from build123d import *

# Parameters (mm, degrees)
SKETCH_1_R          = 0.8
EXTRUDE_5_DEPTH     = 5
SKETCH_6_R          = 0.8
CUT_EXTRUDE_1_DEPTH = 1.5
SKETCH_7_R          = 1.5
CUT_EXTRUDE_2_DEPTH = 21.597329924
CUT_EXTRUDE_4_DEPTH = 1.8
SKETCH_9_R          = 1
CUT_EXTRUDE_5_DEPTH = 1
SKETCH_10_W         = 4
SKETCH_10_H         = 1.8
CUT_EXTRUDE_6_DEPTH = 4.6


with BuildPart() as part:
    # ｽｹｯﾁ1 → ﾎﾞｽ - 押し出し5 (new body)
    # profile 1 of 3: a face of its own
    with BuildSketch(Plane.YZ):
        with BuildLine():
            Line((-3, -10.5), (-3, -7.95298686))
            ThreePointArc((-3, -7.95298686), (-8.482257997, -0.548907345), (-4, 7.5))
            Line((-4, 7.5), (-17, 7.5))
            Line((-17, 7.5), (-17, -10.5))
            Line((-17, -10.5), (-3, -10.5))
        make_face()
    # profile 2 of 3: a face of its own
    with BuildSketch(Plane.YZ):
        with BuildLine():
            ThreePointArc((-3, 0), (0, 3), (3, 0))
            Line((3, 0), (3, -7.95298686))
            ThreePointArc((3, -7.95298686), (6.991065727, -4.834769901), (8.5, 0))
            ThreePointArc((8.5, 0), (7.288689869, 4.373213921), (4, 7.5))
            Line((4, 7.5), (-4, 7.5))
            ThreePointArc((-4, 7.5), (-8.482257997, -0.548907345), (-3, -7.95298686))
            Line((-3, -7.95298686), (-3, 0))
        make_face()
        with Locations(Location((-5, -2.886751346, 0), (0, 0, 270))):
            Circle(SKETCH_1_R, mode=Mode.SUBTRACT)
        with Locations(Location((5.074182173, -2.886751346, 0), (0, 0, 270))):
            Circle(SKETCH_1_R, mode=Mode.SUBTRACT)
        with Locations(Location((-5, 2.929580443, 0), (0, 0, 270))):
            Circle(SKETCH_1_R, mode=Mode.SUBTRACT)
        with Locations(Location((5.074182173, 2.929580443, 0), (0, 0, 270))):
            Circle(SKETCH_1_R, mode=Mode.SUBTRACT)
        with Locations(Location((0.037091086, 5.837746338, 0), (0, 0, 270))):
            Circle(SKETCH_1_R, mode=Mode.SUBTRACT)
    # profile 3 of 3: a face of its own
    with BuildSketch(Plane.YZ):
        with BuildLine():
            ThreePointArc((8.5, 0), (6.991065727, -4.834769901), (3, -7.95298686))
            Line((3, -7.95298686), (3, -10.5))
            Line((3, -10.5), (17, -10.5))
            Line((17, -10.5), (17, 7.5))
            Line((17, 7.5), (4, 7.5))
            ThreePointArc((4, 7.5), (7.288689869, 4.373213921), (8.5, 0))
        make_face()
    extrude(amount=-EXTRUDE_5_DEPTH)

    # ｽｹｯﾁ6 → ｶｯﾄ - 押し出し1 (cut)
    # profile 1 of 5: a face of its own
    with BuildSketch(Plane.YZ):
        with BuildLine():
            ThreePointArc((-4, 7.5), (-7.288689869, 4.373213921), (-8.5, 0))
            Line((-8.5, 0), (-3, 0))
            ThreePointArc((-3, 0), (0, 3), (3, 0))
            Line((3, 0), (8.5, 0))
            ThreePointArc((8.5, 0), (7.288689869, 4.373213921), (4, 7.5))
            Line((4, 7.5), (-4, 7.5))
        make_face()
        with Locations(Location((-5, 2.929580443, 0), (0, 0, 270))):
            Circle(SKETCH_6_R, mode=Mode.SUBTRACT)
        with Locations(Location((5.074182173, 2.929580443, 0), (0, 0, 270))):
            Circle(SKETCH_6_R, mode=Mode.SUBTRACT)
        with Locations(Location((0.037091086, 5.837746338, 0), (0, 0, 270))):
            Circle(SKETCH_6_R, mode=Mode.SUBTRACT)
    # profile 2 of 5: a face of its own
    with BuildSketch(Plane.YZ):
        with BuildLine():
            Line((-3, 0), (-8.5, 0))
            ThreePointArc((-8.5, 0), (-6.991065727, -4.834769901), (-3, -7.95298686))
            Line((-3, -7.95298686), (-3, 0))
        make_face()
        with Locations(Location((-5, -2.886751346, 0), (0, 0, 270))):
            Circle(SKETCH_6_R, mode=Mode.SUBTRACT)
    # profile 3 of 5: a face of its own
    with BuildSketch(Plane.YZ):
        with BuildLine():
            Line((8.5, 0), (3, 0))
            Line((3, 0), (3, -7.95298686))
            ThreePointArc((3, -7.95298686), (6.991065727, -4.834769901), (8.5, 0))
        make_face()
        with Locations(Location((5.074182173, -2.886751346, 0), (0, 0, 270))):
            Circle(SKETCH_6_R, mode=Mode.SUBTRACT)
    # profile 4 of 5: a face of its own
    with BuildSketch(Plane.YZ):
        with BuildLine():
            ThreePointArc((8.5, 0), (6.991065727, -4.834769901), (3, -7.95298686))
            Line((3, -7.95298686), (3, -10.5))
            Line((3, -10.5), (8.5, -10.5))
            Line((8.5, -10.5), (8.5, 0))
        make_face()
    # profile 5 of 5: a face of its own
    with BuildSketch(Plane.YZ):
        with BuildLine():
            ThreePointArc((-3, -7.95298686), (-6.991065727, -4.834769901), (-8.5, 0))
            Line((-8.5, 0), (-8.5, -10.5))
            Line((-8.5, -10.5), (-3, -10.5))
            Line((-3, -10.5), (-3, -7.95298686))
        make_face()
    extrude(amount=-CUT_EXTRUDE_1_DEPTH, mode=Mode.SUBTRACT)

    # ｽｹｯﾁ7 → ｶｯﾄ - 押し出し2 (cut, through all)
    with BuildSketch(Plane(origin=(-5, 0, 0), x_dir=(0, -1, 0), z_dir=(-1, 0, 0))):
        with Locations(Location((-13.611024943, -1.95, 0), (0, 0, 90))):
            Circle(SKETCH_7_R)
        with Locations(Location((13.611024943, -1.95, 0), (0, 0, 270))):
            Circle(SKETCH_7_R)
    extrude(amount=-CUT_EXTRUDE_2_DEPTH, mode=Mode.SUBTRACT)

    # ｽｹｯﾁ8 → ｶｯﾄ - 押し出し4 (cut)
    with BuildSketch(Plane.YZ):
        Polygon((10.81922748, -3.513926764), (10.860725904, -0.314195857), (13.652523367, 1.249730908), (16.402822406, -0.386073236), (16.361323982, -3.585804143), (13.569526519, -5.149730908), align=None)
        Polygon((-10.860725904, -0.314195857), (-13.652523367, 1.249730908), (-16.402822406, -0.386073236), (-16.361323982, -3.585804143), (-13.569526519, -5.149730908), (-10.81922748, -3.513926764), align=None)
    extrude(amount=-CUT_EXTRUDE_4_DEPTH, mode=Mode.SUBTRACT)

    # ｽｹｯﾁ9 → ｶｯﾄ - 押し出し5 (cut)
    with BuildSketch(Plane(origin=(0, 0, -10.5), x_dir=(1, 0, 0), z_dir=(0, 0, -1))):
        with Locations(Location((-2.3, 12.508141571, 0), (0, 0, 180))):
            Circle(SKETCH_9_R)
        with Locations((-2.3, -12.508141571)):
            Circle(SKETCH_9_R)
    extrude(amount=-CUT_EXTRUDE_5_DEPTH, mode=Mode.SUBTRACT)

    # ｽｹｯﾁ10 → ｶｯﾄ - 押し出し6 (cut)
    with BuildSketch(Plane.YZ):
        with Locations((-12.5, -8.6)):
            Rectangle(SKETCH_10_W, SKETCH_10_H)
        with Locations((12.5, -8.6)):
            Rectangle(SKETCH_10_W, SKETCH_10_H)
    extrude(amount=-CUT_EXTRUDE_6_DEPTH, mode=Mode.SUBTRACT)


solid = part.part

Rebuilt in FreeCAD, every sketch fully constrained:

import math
import FreeCAD as App
import Part
import Sketcher

V = App.Vector
Q = App.Units.Quantity

doc = App.newDocument("Part")
body = doc.addObject("PartDesign::Body", "Body")

sketch1 = doc.addObject("Sketcher::SketchObject", "Sketch")
body.addObject(sketch1)
sketch1.AttachmentSupport = (doc.YZ_Plane, [""])
sketch1.MapMode = "FlatFace"
sketch1.addGeometry(Part.LineSegment(V(-3, -10.5, 0), V(-3, 0, 0)), False)
sketch1.addGeometry(Part.ArcOfCircle(Part.Circle(V(0, 0, 0), V(0, 0, 1), 3), math.radians(0), math.radians(180)), False)
sketch1.addGeometry(Part.LineSegment(V(3, 0, 0), V(3, -10.5, 0)), False)
sketch1.addGeometry(Part.LineSegment(V(3, -10.5, 0), V(17, -10.5, 0)), False)
sketch1.addGeometry(Part.LineSegment(V(17, -10.5, 0), V(17, 7.5, 0)), False)
sketch1.addGeometry(Part.LineSegment(V(17, 7.5, 0), V(-17, 7.5, 0)), False)
sketch1.addGeometry(Part.LineSegment(V(-17, 7.5, 0), V(-17, -10.5, 0)), False)
sketch1.addGeometry(Part.LineSegment(V(-17, -10.5, 0), V(-3, -10.5, 0)), False)
sketch1.addGeometry(Part.Circle(V(5.1, 2.9, 0), V(0, 0, 1), 0.8), False)
sketch1.addGeometry(Part.Circle(V(-5, -2.9, 0), V(0, 0, 1), 0.8), False)
sketch1.addGeometry(Part.Circle(V(5.1, -2.9, 0), V(0, 0, 1), 0.8), False)
sketch1.addGeometry(Part.Circle(V(-5, 2.9, 0), V(0, 0, 1), 0.8), False)
sketch1.addGeometry(Part.Circle(V(0, 5.8, 0), V(0, 0, 1), 0.8), False)
sketch1.addConstraint(Sketcher.Constraint("Tangent", 0, 2, 1, 2))
sketch1.addConstraint(Sketcher.Constraint("Tangent", 1, 1, 2, 1))
sketch1.addConstraint(Sketcher.Constraint("Coincident", 2, 2, 3, 1))
sketch1.addConstraint(Sketcher.Constraint("Coincident", 3, 2, 4, 1))
sketch1.addConstraint(Sketcher.Constraint("Coincident", 4, 2, 5, 1))
sketch1.addConstraint(Sketcher.Constraint("Coincident", 5, 2, 6, 1))
sketch1.addConstraint(Sketcher.Constraint("Coincident", 6, 2, 7, 1))
sketch1.addConstraint(Sketcher.Constraint("Coincident", 7, 2, 0, 1))
sketch1.addConstraint(Sketcher.Constraint("Vertical", 0))
sketch1.addConstraint(Sketcher.Constraint("Vertical", 2))
sketch1.addConstraint(Sketcher.Constraint("Horizontal", 3))
sketch1.addConstraint(Sketcher.Constraint("Vertical", 4))
sketch1.addConstraint(Sketcher.Constraint("Horizontal", 5))
sketch1.addConstraint(Sketcher.Constraint("Vertical", 6))
sketch1.addConstraint(Sketcher.Constraint("Horizontal", 7))
sketch1.addConstraint(Sketcher.Constraint("Coincident", 1, 3, -1, 1))
sketch1.addConstraint(Sketcher.Constraint("Equal", 8, 9))
sketch1.addConstraint(Sketcher.Constraint("Equal", 9, 10))
sketch1.addConstraint(Sketcher.Constraint("Equal", 10, 11))
sketch1.addConstraint(Sketcher.Constraint("Equal", 11, 12))
sketch1.addConstraint(Sketcher.Constraint("Symmetric", 3, 2, 6, 2, -2))
sketch1.addConstraint(Sketcher.Constraint("Horizontal", 9, 3, 10, 3))
sketch1.addConstraint(Sketcher.Constraint("Horizontal", 8, 3, 11, 3))
sketch1.addConstraint(Sketcher.Constraint("Vertical", 8, 3, 10, 3))
sketch1.addConstraint(Sketcher.Constraint("Vertical", 9, 3, 11, 3))
sketch1.addConstraint(Sketcher.Constraint("Radius", 1, Q("3 mm")))
sketch1.addConstraint(Sketcher.Constraint("Diameter", 8, Q("1.6 mm")))
sketch1.addConstraint(Sketcher.Constraint("DistanceX", 3, 1, 3, 2, Q("14 mm")))
sketch1.addConstraint(Sketcher.Constraint("DistanceY", 4, 1, 4, 2, Q("18 mm")))
sketch1.addConstraint(Sketcher.Constraint("DistanceY", 0, 1, 0, 2, Q("10.5 mm")))
sketch1.addConstraint(Sketcher.Constraint("DistanceX", 9, 3, -1, 1, Q("5 mm")))
sketch1.addConstraint(Sketcher.Constraint("DistanceY", -1, 1, 8, 3, Q("2.92958 mm")))
sketch1.addConstraint(Sketcher.Constraint("DistanceY", 9, 3, -1, 1, Q("2.886751 mm")))
sketch1.addConstraint(Sketcher.Constraint("DistanceX", -1, 1, 12, 3, Q("0.037091 mm")))
sketch1.addConstraint(Sketcher.Constraint("DistanceX", 12, 3, 8, 3, Q("5.037091 mm")))
sketch1.addConstraint(Sketcher.Constraint("DistanceY", -1, 1, 12, 3, Q("5.837746 mm")))
pad1 = doc.addObject("PartDesign::Pad", "Pad")
body.addObject(pad1)
pad1.Profile = sketch1
pad1.Length = 5
pad1.Reversed = True

sketch2 = doc.addObject("Sketcher::SketchObject", "Sketch001")
body.addObject(sketch2)
sketch2.AttachmentSupport = (doc.YZ_Plane, [""])
sketch2.MapMode = "FlatFace"
sketch2.addGeometry(Part.ArcOfCircle(Part.Circle(V(0, 0, 0), V(0, 0, 1), 8.5), math.radians(118), math.radians(180)), False)
sketch2.addGeometry(Part.LineSegment(V(-8.5, 0, 0), V(-8.5, -10.5, 0)), False)
sketch2.addGeometry(Part.LineSegment(V(-8.5, -10.5, 0), V(-3, -10.5, 0)), False)
sketch2.addGeometry(Part.LineSegment(V(-3, -10.5, 0), V(-3, 0, 0)), False)
sketch2.addGeometry(Part.ArcOfCircle(Part.Circle(V(0, 0, 0), V(0, 0, 1), 3), math.radians(0), math.radians(180)), False)
sketch2.addGeometry(Part.LineSegment(V(3, 0, 0), V(3, -10.5, 0)), False)
sketch2.addGeometry(Part.LineSegment(V(3, -10.5, 0), V(8.5, -10.5, 0)), False)
sketch2.addGeometry(Part.LineSegment(V(8.5, -10.5, 0), V(8.5, 0, 0)), False)
sketch2.addGeometry(Part.ArcOfCircle(Part.Circle(V(0, 0, 0), V(0, 0, 1), 8.5), math.radians(0), math.radians(62)), False)
sketch2.addGeometry(Part.LineSegment(V(4, 7.5, 0), V(-4, 7.5, 0)), False)
sketch2.addGeometry(Part.Circle(V(-5, 2.9, 0), V(0, 0, 1), 0.8), False)
sketch2.addGeometry(Part.Circle(V(5.1, 2.9, 0), V(0, 0, 1), 0.8), False)
sketch2.addGeometry(Part.Circle(V(0, 5.8, 0), V(0, 0, 1), 0.8), False)
sketch2.addGeometry(Part.Circle(V(-5, -2.9, 0), V(0, 0, 1), 0.8), False)
sketch2.addGeometry(Part.Circle(V(5.1, -2.9, 0), V(0, 0, 1), 0.8), False)
sketch2.addConstraint(Sketcher.Constraint("Tangent", 0, 2, 1, 1))
sketch2.addConstraint(Sketcher.Constraint("Coincident", 1, 2, 2, 1))
sketch2.addConstraint(Sketcher.Constraint("Coincident", 2, 2, 3, 1))
sketch2.addConstraint(Sketcher.Constraint("Tangent", 3, 2, 4, 2))
sketch2.addConstraint(Sketcher.Constraint("Tangent", 4, 1, 5, 1))
sketch2.addConstraint(Sketcher.Constraint("Coincident", 5, 2, 6, 1))
sketch2.addConstraint(Sketcher.Constraint("Coincident", 6, 2, 7, 1))
sketch2.addConstraint(Sketcher.Constraint("Tangent", 7, 2, 8, 1))
sketch2.addConstraint(Sketcher.Constraint("Coincident", 8, 2, 9, 1))
sketch2.addConstraint(Sketcher.Constraint("Coincident", 9, 2, 0, 1))
sketch2.addConstraint(Sketcher.Constraint("Vertical", 1))
sketch2.addConstraint(Sketcher.Constraint("Horizontal", 2))
sketch2.addConstraint(Sketcher.Constraint("Vertical", 3))
sketch2.addConstraint(Sketcher.Constraint("Vertical", 5))
sketch2.addConstraint(Sketcher.Constraint("Horizontal", 6))
sketch2.addConstraint(Sketcher.Constraint("Vertical", 7))
sketch2.addConstraint(Sketcher.Constraint("Horizontal", 9))
sketch2.addConstraint(Sketcher.Constraint("Coincident", 0, 3, -1, 1))
sketch2.addConstraint(Sketcher.Constraint("Coincident", 4, 3, -1, 1))
sketch2.addConstraint(Sketcher.Constraint("Coincident", 8, 3, -1, 1))
sketch2.addConstraint(Sketcher.Constraint("Equal", 0, 8))
sketch2.addConstraint(Sketcher.Constraint("Equal", 10, 11))
sketch2.addConstraint(Sketcher.Constraint("Equal", 11, 12))
sketch2.addConstraint(Sketcher.Constraint("Equal", 12, 13))
sketch2.addConstraint(Sketcher.Constraint("Equal", 13, 14))
sketch2.addConstraint(Sketcher.Constraint("Horizontal", 10, 3, 11, 3))
sketch2.addConstraint(Sketcher.Constraint("Horizontal", 13, 3, 14, 3))
sketch2.addConstraint(Sketcher.Constraint("Horizontal", 2, 2, 5, 2))
sketch2.addConstraint(Sketcher.Constraint("Vertical", 10, 3, 13, 3))
sketch2.addConstraint(Sketcher.Constraint("Vertical", 11, 3, 14, 3))
sketch2.addConstraint(Sketcher.Constraint("Radius", 4, Q("3 mm")))
sketch2.addConstraint(Sketcher.Constraint("Diameter", 10, Q("1.6 mm")))
sketch2.addConstraint(Sketcher.Constraint("Radius", 0, Q("8.5 mm")))
sketch2.addConstraint(Sketcher.Constraint("DistanceX", 9, 2, 9, 1, Q("8 mm")))
sketch2.addConstraint(Sketcher.Constraint("DistanceY", 1, 2, 1, 1, Q("10.5 mm")))
sketch2.addConstraint(Sketcher.Constraint("DistanceX", 10, 3, -1, 1, Q("5 mm")))
sketch2.addConstraint(Sketcher.Constraint("DistanceY", -1, 1, 10, 3, Q("2.92958 mm")))
sketch2.addConstraint(Sketcher.Constraint("DistanceX", -1, 1, 12, 3, Q("0.037091 mm")))
sketch2.addConstraint(Sketcher.Constraint("DistanceY", 13, 3, -1, 1, Q("2.886751 mm")))
sketch2.addConstraint(Sketcher.Constraint("DistanceX", 12, 3, 11, 3, Q("5.037091 mm")))
sketch2.addConstraint(Sketcher.Constraint("DistanceY", -1, 1, 12, 3, Q("5.837746 mm")))
pocket1 = doc.addObject("PartDesign::Pocket", "Pocket")
body.addObject(pocket1)
pocket1.Profile = sketch2
pocket1.Length = 1.5

sketch3 = doc.addObject("Sketcher::SketchObject", "Sketch002")
body.addObject(sketch3)
sketch3.AttachmentSupport = (doc.YZ_Plane, [""])
sketch3.MapMode = "FlatFace"
sketch3.AttachmentOffset = App.Placement(V(0, 0, -5), App.Rotation())
sketch3.addGeometry(Part.Circle(V(13.6, -1.9, 0), V(0, 0, 1), 1.5), False)
sketch3.addGeometry(Part.Circle(V(-13.6, -1.9, 0), V(0, 0, 1), 1.5), False)
sketch3.addConstraint(Sketcher.Constraint("Equal", 0, 1))
sketch3.addConstraint(Sketcher.Constraint("Symmetric", 0, 3, 1, 3, -2))
sketch3.addConstraint(Sketcher.Constraint("Diameter", 0, Q("3 mm")))
sketch3.addConstraint(Sketcher.Constraint("DistanceY", 0, 3, -1, 1, Q("1.95 mm")))
sketch3.addConstraint(Sketcher.Constraint("DistanceX", 1, 3, 0, 3, Q("27.22205 mm")))
pocket2 = doc.addObject("PartDesign::Pocket", "Pocket001")
body.addObject(pocket2)
pocket2.Profile = sketch3
pocket2.Type = "ThroughAll"
pocket2.Reversed = True

sketch4 = doc.addObject("Sketcher::SketchObject", "Sketch003")
body.addObject(sketch4)
sketch4.AttachmentSupport = (doc.YZ_Plane, [""])
sketch4.MapMode = "FlatFace"
sketch4.addGeometry(Part.LineSegment(V(10.9, -0.3, 0), V(10.8, -3.5, 0)), False)
sketch4.addGeometry(Part.LineSegment(V(10.8, -3.5, 0), V(13.6, -5.1, 0)), False)
sketch4.addGeometry(Part.LineSegment(V(13.6, -5.1, 0), V(16.4, -3.6, 0)), False)
sketch4.addGeometry(Part.LineSegment(V(16.4, -3.6, 0), V(16.4, -0.4, 0)), False)
sketch4.addGeometry(Part.LineSegment(V(16.4, -0.4, 0), V(13.7, 1.2, 0)), False)
sketch4.addGeometry(Part.LineSegment(V(13.7, 1.2, 0), V(10.9, -0.3, 0)), False)
sketch4.addGeometry(Part.LineSegment(V(-10.9, -0.3, 0), V(-13.7, 1.2, 0)), False)
sketch4.addGeometry(Part.LineSegment(V(-13.7, 1.2, 0), V(-16.4, -0.4, 0)), False)
sketch4.addGeometry(Part.LineSegment(V(-16.4, -0.4, 0), V(-16.4, -3.6, 0)), False)
sketch4.addGeometry(Part.LineSegment(V(-16.4, -3.6, 0), V(-13.6, -5.1, 0)), False)
sketch4.addGeometry(Part.LineSegment(V(-13.6, -5.1, 0), V(-10.8, -3.5, 0)), False)
sketch4.addGeometry(Part.LineSegment(V(-10.8, -3.5, 0), V(-10.9, -0.3, 0)), False)
sketch4.addConstraint(Sketcher.Constraint("Coincident", 0, 2, 1, 1))
sketch4.addConstraint(Sketcher.Constraint("Coincident", 1, 2, 2, 1))
sketch4.addConstraint(Sketcher.Constraint("Coincident", 2, 2, 3, 1))
sketch4.addConstraint(Sketcher.Constraint("Coincident", 3, 2, 4, 1))
sketch4.addConstraint(Sketcher.Constraint("Coincident", 4, 2, 5, 1))
sketch4.addConstraint(Sketcher.Constraint("Coincident", 5, 2, 0, 1))
sketch4.addConstraint(Sketcher.Constraint("Coincident", 6, 2, 7, 1))
sketch4.addConstraint(Sketcher.Constraint("Coincident", 7, 2, 8, 1))
sketch4.addConstraint(Sketcher.Constraint("Coincident", 8, 2, 9, 1))
sketch4.addConstraint(Sketcher.Constraint("Coincident", 9, 2, 10, 1))
sketch4.addConstraint(Sketcher.Constraint("Coincident", 10, 2, 11, 1))
sketch4.addConstraint(Sketcher.Constraint("Coincident", 11, 2, 6, 1))
sketch4.addConstraint(Sketcher.Constraint("Symmetric", 4, 2, 6, 2, -2))
sketch4.addConstraint(Sketcher.Constraint("Symmetric", 3, 2, 7, 2, -2))
sketch4.addConstraint(Sketcher.Constraint("Symmetric", 2, 2, 8, 2, -2))
sketch4.addConstraint(Sketcher.Constraint("Symmetric", 1, 2, 9, 2, -2))
sketch4.addConstraint(Sketcher.Constraint("Symmetric", 0, 2, 10, 2, -2))
sketch4.addConstraint(Sketcher.Constraint("Symmetric", 5, 2, 11, 2, -2))
sketch4.addConstraint(Sketcher.Constraint("Parallel", 0, 3))
sketch4.addConstraint(Sketcher.Constraint("Parallel", 1, 4))
sketch4.addConstraint(Sketcher.Constraint("Parallel", 2, 5))
sketch4.addConstraint(Sketcher.Constraint("Equal", 0, 1))
sketch4.addConstraint(Sketcher.Constraint("Equal", 1, 2))
sketch4.addConstraint(Sketcher.Constraint("Equal", 2, 3))
sketch4.addConstraint(Sketcher.Constraint("Distance", 0, Q("3.2 mm")))
sketch4.addConstraint(Sketcher.Constraint("DistanceX", 0, 2, 1, 2, Q("2.750299 mm")))
sketch4.addConstraint(Sketcher.Constraint("DistanceX", 2, 2, 3, 2, Q("0.041498 mm")))
sketch4.addConstraint(Sketcher.Constraint("DistanceX", 5, 2, 2, 2, Q("5.500598 mm")))
sketch4.addConstraint(Sketcher.Constraint("DistanceY", 1, 2, -1, 1, Q("5.149731 mm")))
sketch4.addConstraint(Sketcher.Constraint("DistanceX", 6, 2, 5, 2, Q("24.513249 mm")))
pocket3 = doc.addObject("PartDesign::Pocket", "Pocket002")
body.addObject(pocket3)
pocket3.Profile = sketch4
pocket3.Length = 1.8

sketch5 = doc.addObject("Sketcher::SketchObject", "Sketch004")
body.addObject(sketch5)
sketch5.AttachmentSupport = (doc.XY_Plane, [""])
sketch5.MapMode = "FlatFace"
sketch5.AttachmentOffset = App.Placement(V(0, 0, -10.5), App.Rotation())
sketch5.addGeometry(Part.Circle(V(-2.3, -12.5, 0), V(0, 0, 1), 1), False)
sketch5.addGeometry(Part.Circle(V(-2.3, 12.5, 0), V(0, 0, 1), 1), False)
sketch5.addConstraint(Sketcher.Constraint("Equal", 0, 1))
sketch5.addConstraint(Sketcher.Constraint("Symmetric", 0, 3, 1, 3, -1))
sketch5.addConstraint(Sketcher.Constraint("Diameter", 0, Q("2 mm")))
sketch5.addConstraint(Sketcher.Constraint("DistanceX", 0, 3, -1, 1, Q("2.3 mm")))
sketch5.addConstraint(Sketcher.Constraint("DistanceY", 0, 3, -1, 1, Q("12.508142 mm")))
pocket4 = doc.addObject("PartDesign::Pocket", "Pocket003")
body.addObject(pocket4)
pocket4.Profile = sketch5
pocket4.Length = 1
pocket4.Reversed = True

sketch6 = doc.addObject("Sketcher::SketchObject", "Sketch005")
body.addObject(sketch6)
sketch6.AttachmentSupport = (doc.YZ_Plane, [""])
sketch6.MapMode = "FlatFace"
sketch6.addGeometry(Part.LineSegment(V(-14.5, -7.7, 0), V(-14.5, -9.5, 0)), False)
sketch6.addGeometry(Part.LineSegment(V(-14.5, -9.5, 0), V(-10.5, -9.5, 0)), False)
sketch6.addGeometry(Part.LineSegment(V(-10.5, -9.5, 0), V(-10.5, -7.7, 0)), False)
sketch6.addGeometry(Part.LineSegment(V(-10.5, -7.7, 0), V(-14.5, -7.7, 0)), False)
sketch6.addGeometry(Part.LineSegment(V(10.5, -7.7, 0), V(10.5, -9.5, 0)), False)
sketch6.addGeometry(Part.LineSegment(V(10.5, -9.5, 0), V(14.5, -9.5, 0)), False)
sketch6.addGeometry(Part.LineSegment(V(14.5, -9.5, 0), V(14.5, -7.7, 0)), False)
sketch6.addGeometry(Part.LineSegment(V(14.5, -7.7, 0), V(10.5, -7.7, 0)), False)
sketch6.addConstraint(Sketcher.Constraint("Coincident", 0, 2, 1, 1))
sketch6.addConstraint(Sketcher.Constraint("Coincident", 1, 2, 2, 1))
sketch6.addConstraint(Sketcher.Constraint("Coincident", 2, 2, 3, 1))
sketch6.addConstraint(Sketcher.Constraint("Coincident", 3, 2, 0, 1))
sketch6.addConstraint(Sketcher.Constraint("Coincident", 4, 2, 5, 1))
sketch6.addConstraint(Sketcher.Constraint("Coincident", 5, 2, 6, 1))
sketch6.addConstraint(Sketcher.Constraint("Coincident", 6, 2, 7, 1))
sketch6.addConstraint(Sketcher.Constraint("Coincident", 7, 2, 4, 1))
sketch6.addConstraint(Sketcher.Constraint("Vertical", 0))
sketch6.addConstraint(Sketcher.Constraint("Horizontal", 1))
sketch6.addConstraint(Sketcher.Constraint("Vertical", 2))
sketch6.addConstraint(Sketcher.Constraint("Horizontal", 3))
sketch6.addConstraint(Sketcher.Constraint("Vertical", 4))
sketch6.addConstraint(Sketcher.Constraint("Horizontal", 5))
sketch6.addConstraint(Sketcher.Constraint("Vertical", 6))
sketch6.addConstraint(Sketcher.Constraint("Horizontal", 7))
sketch6.addConstraint(Sketcher.Constraint("Symmetric", 1, 2, 4, 2, -2))
sketch6.addConstraint(Sketcher.Constraint("Symmetric", 3, 2, 6, 2, -2))
sketch6.addConstraint(Sketcher.Constraint("DistanceX", 1, 1, 1, 2, Q("4 mm")))
sketch6.addConstraint(Sketcher.Constraint("DistanceY", 0, 2, 0, 1, Q("1.8 mm")))
sketch6.addConstraint(Sketcher.Constraint("DistanceX", 1, 2, 4, 2, Q("21 mm")))
sketch6.addConstraint(Sketcher.Constraint("DistanceY", 0, 2, -1, 1, Q("9.5 mm")))
pocket5 = doc.addObject("PartDesign::Pocket", "Pocket004")
body.addObject(pocket5)
pocket5.Profile = sketch6
pocket5.Length = 4.6

doc.recompute()
